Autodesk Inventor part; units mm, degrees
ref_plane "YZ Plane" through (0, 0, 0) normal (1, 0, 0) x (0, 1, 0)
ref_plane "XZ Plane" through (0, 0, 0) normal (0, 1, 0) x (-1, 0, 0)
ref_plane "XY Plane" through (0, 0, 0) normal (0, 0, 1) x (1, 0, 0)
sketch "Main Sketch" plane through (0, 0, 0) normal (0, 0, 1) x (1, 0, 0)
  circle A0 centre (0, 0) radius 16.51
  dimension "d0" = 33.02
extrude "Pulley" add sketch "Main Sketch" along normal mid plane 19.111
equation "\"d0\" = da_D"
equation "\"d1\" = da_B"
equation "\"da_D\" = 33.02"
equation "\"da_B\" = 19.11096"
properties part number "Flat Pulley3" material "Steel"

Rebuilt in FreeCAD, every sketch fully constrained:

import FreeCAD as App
import Part
import Sketcher

V = App.Vector
Q = App.Units.Quantity

doc = App.newDocument("Part")
params = doc.addObject("Spreadsheet::Sheet", "Params")
for row, (alias, value) in enumerate([
    ("sketch1_diameter", "1.3 in"),
    ("pad1_length", "0.7524016 in"),
], start=1):
    params.set(f"A{row}", alias)
    params.set(f"B{row}", "=" + value)
    params.setAlias(f"B{row}", alias)

body = doc.addObject("PartDesign::Body", "Body")

sketch1 = body.newObject("Sketcher::SketchObject", "Sketch")
sketch1.AttachmentSupport = (doc.getObject("XY_Plane"), [""])
sketch1.MapMode = "FlatFace"
sketch1.addGeometry(Part.Circle(V(0, 0, 0), V(0, 0, 1), 16.51), False)
sketch1.addConstraint([
    Sketcher.Constraint("Coincident", 0, 3, -1, 1),
    Sketcher.Constraint("Diameter", 0, Q("1.3 in")),
])
sketch1.setExpression("Constraints[1]", "Params.sketch1_diameter")
pad1 = body.newObject("PartDesign::Pad", "Pad")
pad1.Profile = sketch1
pad1.setExpression("Length", "Params.pad1_length")
pad1.Midplane = True

doc.recompute()
